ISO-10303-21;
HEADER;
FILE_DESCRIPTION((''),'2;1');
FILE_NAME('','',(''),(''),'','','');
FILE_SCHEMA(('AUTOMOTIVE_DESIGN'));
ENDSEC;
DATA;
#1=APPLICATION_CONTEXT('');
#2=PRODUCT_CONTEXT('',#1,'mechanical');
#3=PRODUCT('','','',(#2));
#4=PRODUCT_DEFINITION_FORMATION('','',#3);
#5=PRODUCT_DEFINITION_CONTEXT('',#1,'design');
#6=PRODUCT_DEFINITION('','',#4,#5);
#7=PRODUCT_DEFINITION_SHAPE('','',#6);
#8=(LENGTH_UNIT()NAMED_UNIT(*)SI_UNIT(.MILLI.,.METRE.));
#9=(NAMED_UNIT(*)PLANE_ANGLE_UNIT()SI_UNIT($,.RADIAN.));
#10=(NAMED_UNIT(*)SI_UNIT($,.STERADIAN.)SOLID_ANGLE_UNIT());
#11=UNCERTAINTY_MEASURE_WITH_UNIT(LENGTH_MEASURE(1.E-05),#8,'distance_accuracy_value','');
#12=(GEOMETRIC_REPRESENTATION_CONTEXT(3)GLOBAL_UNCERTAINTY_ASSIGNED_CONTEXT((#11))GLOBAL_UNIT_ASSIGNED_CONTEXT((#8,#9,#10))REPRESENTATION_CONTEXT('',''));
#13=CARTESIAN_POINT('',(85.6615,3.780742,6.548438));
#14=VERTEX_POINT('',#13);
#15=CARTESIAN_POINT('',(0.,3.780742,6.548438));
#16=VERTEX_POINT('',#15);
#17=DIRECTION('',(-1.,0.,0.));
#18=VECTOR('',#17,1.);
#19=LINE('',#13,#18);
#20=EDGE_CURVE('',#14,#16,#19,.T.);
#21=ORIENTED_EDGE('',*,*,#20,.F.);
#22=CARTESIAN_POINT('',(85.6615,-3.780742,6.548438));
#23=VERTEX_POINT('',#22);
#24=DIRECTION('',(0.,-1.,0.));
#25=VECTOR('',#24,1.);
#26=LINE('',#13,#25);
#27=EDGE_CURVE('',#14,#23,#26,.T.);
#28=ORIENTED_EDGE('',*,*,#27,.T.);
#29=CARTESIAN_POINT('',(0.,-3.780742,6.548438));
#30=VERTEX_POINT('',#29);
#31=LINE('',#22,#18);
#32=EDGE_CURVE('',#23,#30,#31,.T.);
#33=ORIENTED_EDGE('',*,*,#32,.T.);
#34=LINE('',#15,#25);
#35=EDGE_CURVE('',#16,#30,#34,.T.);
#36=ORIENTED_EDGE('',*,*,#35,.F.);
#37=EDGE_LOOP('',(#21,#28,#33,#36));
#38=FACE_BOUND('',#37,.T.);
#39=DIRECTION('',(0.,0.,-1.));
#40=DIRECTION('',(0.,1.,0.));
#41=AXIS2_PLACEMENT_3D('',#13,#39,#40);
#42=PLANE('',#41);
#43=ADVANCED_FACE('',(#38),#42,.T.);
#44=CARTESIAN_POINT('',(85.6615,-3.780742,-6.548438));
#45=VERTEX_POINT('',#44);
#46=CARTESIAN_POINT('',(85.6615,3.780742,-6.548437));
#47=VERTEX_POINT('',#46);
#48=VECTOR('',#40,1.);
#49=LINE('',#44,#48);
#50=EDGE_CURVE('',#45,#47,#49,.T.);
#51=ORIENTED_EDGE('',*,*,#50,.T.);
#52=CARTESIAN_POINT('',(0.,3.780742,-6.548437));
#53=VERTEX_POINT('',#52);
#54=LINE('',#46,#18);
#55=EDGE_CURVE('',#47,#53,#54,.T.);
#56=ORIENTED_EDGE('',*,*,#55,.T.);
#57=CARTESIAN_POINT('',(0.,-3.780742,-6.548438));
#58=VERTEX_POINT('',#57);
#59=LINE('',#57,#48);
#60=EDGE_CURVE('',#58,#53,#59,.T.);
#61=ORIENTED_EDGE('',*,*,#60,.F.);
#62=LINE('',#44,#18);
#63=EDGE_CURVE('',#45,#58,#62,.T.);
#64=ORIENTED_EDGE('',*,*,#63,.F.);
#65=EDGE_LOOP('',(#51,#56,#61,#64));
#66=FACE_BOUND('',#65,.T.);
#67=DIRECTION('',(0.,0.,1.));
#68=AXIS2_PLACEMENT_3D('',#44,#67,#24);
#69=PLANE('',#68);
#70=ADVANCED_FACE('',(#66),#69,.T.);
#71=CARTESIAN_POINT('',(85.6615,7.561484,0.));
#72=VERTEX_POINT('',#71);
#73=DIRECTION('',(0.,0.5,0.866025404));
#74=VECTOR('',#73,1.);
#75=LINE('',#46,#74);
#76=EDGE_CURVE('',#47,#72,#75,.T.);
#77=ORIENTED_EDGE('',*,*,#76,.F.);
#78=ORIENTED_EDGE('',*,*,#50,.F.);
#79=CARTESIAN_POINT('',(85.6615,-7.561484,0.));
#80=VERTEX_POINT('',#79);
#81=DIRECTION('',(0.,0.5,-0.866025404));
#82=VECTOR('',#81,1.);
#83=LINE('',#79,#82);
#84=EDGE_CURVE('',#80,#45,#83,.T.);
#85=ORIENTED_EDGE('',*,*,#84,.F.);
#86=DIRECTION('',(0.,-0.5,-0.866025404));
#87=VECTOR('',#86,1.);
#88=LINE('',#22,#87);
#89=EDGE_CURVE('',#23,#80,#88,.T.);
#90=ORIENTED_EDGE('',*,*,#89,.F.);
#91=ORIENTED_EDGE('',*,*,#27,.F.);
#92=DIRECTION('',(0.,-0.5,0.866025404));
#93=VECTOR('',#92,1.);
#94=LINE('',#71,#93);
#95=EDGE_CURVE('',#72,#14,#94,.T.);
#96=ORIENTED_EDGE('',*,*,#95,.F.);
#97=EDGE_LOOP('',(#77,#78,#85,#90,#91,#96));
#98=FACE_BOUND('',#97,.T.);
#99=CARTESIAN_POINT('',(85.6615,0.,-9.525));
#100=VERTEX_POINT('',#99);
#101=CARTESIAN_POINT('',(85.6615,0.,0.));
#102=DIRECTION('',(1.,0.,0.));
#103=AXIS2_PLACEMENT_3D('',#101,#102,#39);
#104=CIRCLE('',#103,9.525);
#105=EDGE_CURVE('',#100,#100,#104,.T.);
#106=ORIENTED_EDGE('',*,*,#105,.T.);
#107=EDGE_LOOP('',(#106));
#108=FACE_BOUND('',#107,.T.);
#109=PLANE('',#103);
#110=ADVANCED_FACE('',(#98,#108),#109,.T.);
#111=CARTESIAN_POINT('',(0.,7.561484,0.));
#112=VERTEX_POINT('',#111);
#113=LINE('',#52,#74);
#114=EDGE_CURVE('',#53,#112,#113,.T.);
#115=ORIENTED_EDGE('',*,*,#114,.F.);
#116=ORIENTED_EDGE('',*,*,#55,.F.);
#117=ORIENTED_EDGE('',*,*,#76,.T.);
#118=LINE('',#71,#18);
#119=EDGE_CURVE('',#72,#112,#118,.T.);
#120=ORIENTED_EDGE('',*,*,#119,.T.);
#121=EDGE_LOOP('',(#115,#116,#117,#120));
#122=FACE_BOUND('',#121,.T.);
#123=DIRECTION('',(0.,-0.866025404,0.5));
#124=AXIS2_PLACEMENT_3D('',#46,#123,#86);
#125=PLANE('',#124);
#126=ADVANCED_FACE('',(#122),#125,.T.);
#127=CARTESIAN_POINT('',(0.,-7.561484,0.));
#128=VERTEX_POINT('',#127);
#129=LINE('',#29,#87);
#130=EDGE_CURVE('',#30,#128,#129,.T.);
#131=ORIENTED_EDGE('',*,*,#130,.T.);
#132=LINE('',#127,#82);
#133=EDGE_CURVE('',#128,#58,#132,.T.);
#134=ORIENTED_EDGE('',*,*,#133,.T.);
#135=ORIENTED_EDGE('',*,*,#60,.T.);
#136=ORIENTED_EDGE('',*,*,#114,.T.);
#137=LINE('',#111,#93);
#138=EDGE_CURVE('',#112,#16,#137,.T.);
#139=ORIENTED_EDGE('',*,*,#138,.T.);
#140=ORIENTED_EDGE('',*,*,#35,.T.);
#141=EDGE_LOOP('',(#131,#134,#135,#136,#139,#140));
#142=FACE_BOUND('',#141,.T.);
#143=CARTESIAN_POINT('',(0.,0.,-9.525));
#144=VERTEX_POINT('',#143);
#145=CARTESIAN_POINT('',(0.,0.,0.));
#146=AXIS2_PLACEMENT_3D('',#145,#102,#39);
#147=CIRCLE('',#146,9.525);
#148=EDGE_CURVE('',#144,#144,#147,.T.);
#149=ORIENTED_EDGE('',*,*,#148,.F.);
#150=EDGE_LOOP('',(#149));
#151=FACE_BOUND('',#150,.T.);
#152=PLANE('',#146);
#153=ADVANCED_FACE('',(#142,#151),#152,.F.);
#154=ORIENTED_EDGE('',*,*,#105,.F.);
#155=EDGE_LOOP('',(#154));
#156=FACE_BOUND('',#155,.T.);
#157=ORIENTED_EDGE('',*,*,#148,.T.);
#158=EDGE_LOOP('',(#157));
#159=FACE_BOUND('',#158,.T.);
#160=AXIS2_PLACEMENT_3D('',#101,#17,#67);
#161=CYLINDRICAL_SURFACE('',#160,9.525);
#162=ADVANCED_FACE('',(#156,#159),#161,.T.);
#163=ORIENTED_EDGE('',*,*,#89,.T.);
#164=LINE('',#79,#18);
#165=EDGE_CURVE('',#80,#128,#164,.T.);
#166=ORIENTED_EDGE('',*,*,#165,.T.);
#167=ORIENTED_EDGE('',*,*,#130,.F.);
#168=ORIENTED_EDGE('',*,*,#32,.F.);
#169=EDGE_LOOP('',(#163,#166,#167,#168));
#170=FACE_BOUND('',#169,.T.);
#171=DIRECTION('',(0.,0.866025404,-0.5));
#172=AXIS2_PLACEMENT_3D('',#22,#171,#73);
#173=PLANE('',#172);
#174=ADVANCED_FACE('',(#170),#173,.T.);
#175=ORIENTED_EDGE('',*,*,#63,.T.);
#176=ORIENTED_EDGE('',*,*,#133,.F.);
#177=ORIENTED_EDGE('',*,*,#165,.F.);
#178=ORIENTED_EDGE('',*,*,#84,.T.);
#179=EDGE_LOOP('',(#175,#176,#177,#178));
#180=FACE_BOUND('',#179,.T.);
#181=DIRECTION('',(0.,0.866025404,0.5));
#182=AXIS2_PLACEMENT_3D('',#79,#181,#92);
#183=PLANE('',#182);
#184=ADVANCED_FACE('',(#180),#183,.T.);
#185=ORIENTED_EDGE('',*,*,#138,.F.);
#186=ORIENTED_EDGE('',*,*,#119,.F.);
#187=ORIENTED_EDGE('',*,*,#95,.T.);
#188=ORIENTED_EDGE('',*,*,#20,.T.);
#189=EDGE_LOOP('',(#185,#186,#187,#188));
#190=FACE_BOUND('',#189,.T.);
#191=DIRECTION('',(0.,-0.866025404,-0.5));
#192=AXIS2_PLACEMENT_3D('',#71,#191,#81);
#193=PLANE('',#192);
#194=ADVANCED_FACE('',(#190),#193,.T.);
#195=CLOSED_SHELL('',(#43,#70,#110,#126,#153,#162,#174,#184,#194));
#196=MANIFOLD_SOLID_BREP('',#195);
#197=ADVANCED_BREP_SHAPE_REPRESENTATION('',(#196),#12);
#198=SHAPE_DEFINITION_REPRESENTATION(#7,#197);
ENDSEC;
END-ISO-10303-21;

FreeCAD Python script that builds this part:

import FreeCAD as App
import Part
import Sketcher
Q = App.Units.Quantity

doc = App.newDocument("Part")
params = doc.addObject("Spreadsheet::Sheet", "Params")
for row, (alias, value) in enumerate([
    ("sketch1_diameter", "0.75 in"),
    ("pad1_length", "3.3725 in"),
], start=1):
    params.set(f"A{row}", alias)
    params.set(f"B{row}", "=" + value)
    params.setAlias(f"B{row}", alias)

body = doc.addObject("PartDesign::Body", "Body")

sketch1 = body.newObject("Sketcher::SketchObject", "Sketch")
sketch1.AttachmentSupport = (doc.getObject("YZ_Plane"), [""])
sketch1.MapMode = "FlatFace"
sketch1.addGeometry([
    Part.Circle(App.Vector(0, 0, 0), App.Vector(0, 0, 1), 9.525),
    Part.LineSegment(App.Vector(3.780742, 6.548438, 0), App.Vector(7.561484, 0, 0)),
    Part.LineSegment(App.Vector(7.561484, 0, 0), App.Vector(3.780742, -6.548438, 0)),
    Part.LineSegment(App.Vector(3.780742, -6.548438, 0), App.Vector(-3.780742, -6.548438, 0)),
    Part.LineSegment(App.Vector(-3.780742, -6.548438, 0), App.Vector(-7.561484, 0, 0)),
    Part.LineSegment(App.Vector(-7.561484, 0, 0), App.Vector(-3.780742, 6.548438, 0)),
    Part.LineSegment(App.Vector(-3.780742, 6.548438, 0), App.Vector(3.780742, 6.548438, 0)),
], False)
sketch1.addConstraint([
    Sketcher.Constraint("Coincident", 1, 2, 2, 1),
    Sketcher.Constraint("Coincident", 2, 2, 3, 1),
    Sketcher.Constraint("Coincident", 3, 2, 4, 1),
    Sketcher.Constraint("Coincident", 4, 2, 5, 1),
    Sketcher.Constraint("Coincident", 5, 2, 6, 1),
    Sketcher.Constraint("Coincident", 6, 2, 1, 1),
    Sketcher.Constraint("Horizontal", 3),
    Sketcher.Constraint("Horizontal", 6),
    Sketcher.Constraint("Coincident", 0, 3, -1, 1),
    Sketcher.Constraint("Symmetric", 1, 2, 4, 2, -1, 1),
    Sketcher.Constraint("Symmetric", 2, 2, 5, 2, -1, 1),
    Sketcher.Constraint("PointOnObject", 1, 2, -1),
    Sketcher.Constraint("Parallel", 1, 4),
    Sketcher.Constraint("Vertical", 3, 2, 5, 2),
    Sketcher.Constraint("Diameter", 0, Q("0.75 in")),
    Sketcher.Constraint("Angle", 1, Q("-60 deg")),
    Sketcher.Constraint("DistanceY", 3, 2, 5, 2, Q("0.515625 in")),
    Sketcher.Constraint("DistanceX", 3, 2, 3, 1, 7.561484),
])
sketch1.setExpression("Constraints[14]", "Params.sketch1_diameter")
pad1 = body.newObject("PartDesign::Pad", "Pad")
pad1.Profile = sketch1
pad1.setExpression("Length", "Params.pad1_length")

doc.recompute()
